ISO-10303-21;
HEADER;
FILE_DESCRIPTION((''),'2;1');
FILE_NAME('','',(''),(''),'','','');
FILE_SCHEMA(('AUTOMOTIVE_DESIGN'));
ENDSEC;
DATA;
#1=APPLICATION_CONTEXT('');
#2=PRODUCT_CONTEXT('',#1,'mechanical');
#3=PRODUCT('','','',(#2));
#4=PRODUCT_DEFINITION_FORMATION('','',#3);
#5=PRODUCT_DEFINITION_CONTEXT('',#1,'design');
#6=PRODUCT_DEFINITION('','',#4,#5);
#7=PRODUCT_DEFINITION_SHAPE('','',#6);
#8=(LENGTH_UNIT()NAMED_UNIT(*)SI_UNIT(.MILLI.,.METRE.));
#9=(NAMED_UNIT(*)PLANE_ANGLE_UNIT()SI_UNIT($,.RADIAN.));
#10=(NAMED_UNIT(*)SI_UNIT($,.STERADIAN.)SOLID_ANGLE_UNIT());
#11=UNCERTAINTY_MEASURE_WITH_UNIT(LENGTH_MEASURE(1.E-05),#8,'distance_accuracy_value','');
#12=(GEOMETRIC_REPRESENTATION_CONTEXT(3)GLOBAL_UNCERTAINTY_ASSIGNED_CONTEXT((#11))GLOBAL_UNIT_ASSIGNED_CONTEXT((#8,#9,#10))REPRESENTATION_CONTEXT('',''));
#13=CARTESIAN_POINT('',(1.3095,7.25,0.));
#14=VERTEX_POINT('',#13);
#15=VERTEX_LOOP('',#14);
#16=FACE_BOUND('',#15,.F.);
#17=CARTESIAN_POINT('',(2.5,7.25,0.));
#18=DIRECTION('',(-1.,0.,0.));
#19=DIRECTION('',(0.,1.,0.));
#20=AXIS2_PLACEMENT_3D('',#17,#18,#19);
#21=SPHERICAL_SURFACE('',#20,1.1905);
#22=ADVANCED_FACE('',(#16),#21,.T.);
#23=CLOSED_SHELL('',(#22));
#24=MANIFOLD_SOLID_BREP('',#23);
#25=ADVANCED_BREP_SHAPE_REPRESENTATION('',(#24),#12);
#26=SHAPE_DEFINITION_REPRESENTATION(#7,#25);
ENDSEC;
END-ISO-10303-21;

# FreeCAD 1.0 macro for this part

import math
import FreeCAD as App
import Part
import Sketcher

doc = App.newDocument("Part")
params = doc.addObject("Spreadsheet::Sheet", "Params")
for row, (alias, value) in enumerate([
    ("revolution_angle", "360 deg"),
], start=1):
    params.set(f"A{row}", alias)
    params.set(f"B{row}", "=" + value)
    params.setAlias(f"B{row}", alias)

body = doc.addObject("PartDesign::Body", "Body")

# Sketch on XY plane
sketch1 = body.newObject("Sketcher::SketchObject", "Sketch")
sketch1.AttachmentSupport = (doc.getObject("XY_Plane"), [""])
sketch1.MapMode = "FlatFace"
sketch1.addGeometry(Part.LineSegment(App.Vector(1.3, 7.2, 0), App.Vector(3.7, 7.2, 0)), False)
sketch1.addGeometry(Part.ArcOfCircle(Part.Circle(App.Vector(2.5, 7.2, 0), App.Vector(0, 0, 1), 1.2), math.radians(0), math.radians(180)), False)
sketch1.addGeometry(Part.LineSegment(App.Vector(1.3, 7.2, 0), App.Vector(3.7, 7.2, 0)), True)  # axis
sketch1.addConstraint(Sketcher.Constraint("Coincident", 0, 1, 1, 2))
sketch1.addConstraint(Sketcher.Constraint("Coincident", 1, 1, 0, 2))
sketch1.addConstraint(Sketcher.Constraint("Horizontal", 0))
sketch1.addConstraint(Sketcher.Constraint("Horizontal", 2))
sketch1.addConstraint(Sketcher.Constraint("Coincident", 2, 1, 0, 1))
sketch1.addConstraint(Sketcher.Constraint("Horizontal", 1, 3, 0, 1))
sketch1.addConstraint(Sketcher.Constraint("Equal", 0, 2))
sketch1.addConstraint(Sketcher.Constraint("DistanceX", -1, 1, 1, 3, 2.5))
sketch1.addConstraint(Sketcher.Constraint("Radius", 1, 1.1905))
sketch1.addConstraint(Sketcher.Constraint("DistanceY", -1, 1, 1, 3, 7.25))
revolution = body.newObject("PartDesign::Revolution", "Revolution")
revolution.Profile = sketch1
revolution.ReferenceAxis = (sketch1, ["Axis0"])
revolution.setExpression("Angle", "Params.revolution_angle")

doc.recompute()
